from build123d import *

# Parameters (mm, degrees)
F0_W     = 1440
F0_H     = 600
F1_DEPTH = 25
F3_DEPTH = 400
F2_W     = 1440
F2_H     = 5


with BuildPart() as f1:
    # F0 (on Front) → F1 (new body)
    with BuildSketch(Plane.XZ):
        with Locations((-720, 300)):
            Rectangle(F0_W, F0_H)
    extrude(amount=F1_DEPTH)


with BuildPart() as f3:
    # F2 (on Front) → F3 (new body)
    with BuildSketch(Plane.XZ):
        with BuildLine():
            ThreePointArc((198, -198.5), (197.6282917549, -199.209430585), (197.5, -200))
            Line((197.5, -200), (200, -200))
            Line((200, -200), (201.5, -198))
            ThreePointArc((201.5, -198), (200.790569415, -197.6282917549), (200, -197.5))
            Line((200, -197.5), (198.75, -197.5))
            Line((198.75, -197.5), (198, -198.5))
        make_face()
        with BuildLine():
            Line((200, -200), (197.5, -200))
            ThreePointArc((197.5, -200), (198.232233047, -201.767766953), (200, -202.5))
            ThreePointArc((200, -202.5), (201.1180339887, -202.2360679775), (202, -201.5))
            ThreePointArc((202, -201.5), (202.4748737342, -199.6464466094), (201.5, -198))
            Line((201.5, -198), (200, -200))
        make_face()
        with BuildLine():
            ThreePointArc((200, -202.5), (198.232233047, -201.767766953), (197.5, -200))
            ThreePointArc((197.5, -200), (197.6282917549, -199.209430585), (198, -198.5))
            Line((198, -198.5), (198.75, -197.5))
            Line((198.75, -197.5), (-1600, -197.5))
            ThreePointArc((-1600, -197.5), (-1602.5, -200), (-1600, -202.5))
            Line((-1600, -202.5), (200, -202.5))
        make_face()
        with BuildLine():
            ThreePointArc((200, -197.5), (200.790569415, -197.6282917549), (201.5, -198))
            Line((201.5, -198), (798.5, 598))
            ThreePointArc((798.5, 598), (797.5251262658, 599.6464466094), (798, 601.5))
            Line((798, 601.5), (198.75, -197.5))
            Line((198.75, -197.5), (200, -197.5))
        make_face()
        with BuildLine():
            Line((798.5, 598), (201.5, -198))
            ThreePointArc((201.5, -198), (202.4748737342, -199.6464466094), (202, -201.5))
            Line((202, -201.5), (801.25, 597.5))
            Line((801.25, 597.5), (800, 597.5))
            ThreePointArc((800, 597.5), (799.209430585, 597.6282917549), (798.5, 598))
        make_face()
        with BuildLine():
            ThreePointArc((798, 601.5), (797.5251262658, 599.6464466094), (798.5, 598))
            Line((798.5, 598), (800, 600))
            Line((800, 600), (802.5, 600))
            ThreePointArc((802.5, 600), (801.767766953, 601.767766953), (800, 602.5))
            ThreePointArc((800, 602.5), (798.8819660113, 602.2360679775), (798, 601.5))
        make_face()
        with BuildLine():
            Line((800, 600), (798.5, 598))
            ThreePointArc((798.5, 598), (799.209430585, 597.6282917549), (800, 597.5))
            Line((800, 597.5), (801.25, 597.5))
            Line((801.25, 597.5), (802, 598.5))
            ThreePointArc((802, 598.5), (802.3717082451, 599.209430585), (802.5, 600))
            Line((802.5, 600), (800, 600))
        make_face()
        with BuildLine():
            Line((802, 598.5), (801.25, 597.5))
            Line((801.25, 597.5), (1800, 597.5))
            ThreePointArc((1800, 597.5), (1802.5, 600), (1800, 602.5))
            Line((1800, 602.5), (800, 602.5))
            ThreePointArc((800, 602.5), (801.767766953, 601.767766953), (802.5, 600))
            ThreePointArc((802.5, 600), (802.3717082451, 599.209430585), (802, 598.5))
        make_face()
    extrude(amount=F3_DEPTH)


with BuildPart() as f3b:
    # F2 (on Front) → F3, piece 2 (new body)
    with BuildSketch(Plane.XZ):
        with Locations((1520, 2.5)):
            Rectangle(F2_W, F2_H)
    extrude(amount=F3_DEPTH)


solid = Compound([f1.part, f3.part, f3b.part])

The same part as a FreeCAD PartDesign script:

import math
import FreeCAD as App
import Part
import Sketcher

doc = App.newDocument("Part")
body = doc.addObject("PartDesign::Body", "Body")

# Sketch on XZ plane
sketch1 = body.newObject("Sketcher::SketchObject", "Sketch")
sketch1.AttachmentSupport = (doc.getObject("XZ_Plane"), [""])
sketch1.MapMode = "FlatFace"
sketch1.addGeometry([
    Part.LineSegment(App.Vector(-1440, 600, 0), App.Vector(-1440, 0, 0)),
    Part.LineSegment(App.Vector(-1440, 0, 0), App.Vector(0, 0, 0)),
    Part.LineSegment(App.Vector(0, 0, 0), App.Vector(0, 600, 0)),
    Part.LineSegment(App.Vector(0, 600, 0), App.Vector(-1440, 600, 0)),
], False)
sketch1.addConstraint([
    Sketcher.Constraint("Coincident", 0, 2, 1, 1),
    Sketcher.Constraint("Coincident", 1, 2, 2, 1),
    Sketcher.Constraint("Coincident", 2, 2, 3, 1),
    Sketcher.Constraint("Coincident", 3, 2, 0, 1),
    Sketcher.Constraint("Vertical", 0),
    Sketcher.Constraint("Horizontal", 1),
    Sketcher.Constraint("Vertical", 2),
    Sketcher.Constraint("Horizontal", 3),
    Sketcher.Constraint("Coincident", 1, 2, -1, 1),
    Sketcher.Constraint("DistanceX", 1, 1, 1, 2, 1440.0),
    Sketcher.Constraint("DistanceY", 0, 2, 0, 1, 600.0),
])
pad1 = body.newObject("PartDesign::Pad", "Pad")
pad1.Profile = sketch1
pad1.Length = 25
body2 = doc.addObject("PartDesign::Body", "Body001")

# Sketch on XZ plane
sketch2 = body2.newObject("Sketcher::SketchObject", "Sketch001")
sketch2.AttachmentSupport = (doc.getObject("XZ_Plane001"), [""])
sketch2.MapMode = "FlatFace"
sketch2.addGeometry([
    Part.ArcOfCircle(Part.Circle(App.Vector(200, -200, 0), App.Vector(0, 0, 1), 2.5), math.radians(-90), math.radians(-37)),  # 0
    Part.LineSegment(App.Vector(202, -201.5, 0), App.Vector(801.2, 597.5, 0)),  # 1
    Part.LineSegment(App.Vector(801.2, 597.5, 0), App.Vector(1800, 597.5, 0)),  # 2
    Part.ArcOfCircle(Part.Circle(App.Vector(1800, 600, 0), App.Vector(0, 0, 1), 2.5), math.radians(-90), math.radians(90)),  # 3
    Part.LineSegment(App.Vector(1800, 602.5, 0), App.Vector(800, 602.5, 0)),  # 4
    Part.ArcOfCircle(Part.Circle(App.Vector(800, 600, 0), App.Vector(0, 0, 1), 2.5), math.radians(90), math.radians(143)),  # 5
    Part.LineSegment(App.Vector(798, 601.5, 0), App.Vector(198.8, -197.5, 0)),  # 6
    Part.LineSegment(App.Vector(198.8, -197.5, 0), App.Vector(-1600, -197.5, 0)),  # 7
    Part.ArcOfCircle(Part.Circle(App.Vector(-1600, -200, 0), App.Vector(0, 0, 1), 2.5), math.radians(90), math.radians(270)),  # 8
    Part.LineSegment(App.Vector(-1600, -202.5, 0), App.Vector(200, -202.5, 0)),  # 9
], False)
sketch2.addConstraint([
    Sketcher.Constraint("Tangent", 0, 2, 1, 1),
    Sketcher.Constraint("Coincident", 1, 2, 2, 1),
    Sketcher.Constraint("Tangent", 2, 2, 3, 1),
    Sketcher.Constraint("Tangent", 3, 2, 4, 1),
    Sketcher.Constraint("Tangent", 4, 2, 5, 1),
    Sketcher.Constraint("Tangent", 5, 2, 6, 1),
    Sketcher.Constraint("Coincident", 6, 2, 7, 1),
    Sketcher.Constraint("Tangent", 7, 2, 8, 1),
    Sketcher.Constraint("Tangent", 8, 2, 9, 1),
    Sketcher.Constraint("Tangent", 9, 2, 0, 1),
    Sketcher.Constraint("Horizontal", 2),
    Sketcher.Constraint("Horizontal", 4),
    Sketcher.Constraint("Horizontal", 7),
    Sketcher.Constraint("Horizontal", 9),
    Sketcher.Constraint("Equal", 0, 3),
    Sketcher.Constraint("Equal", 3, 5),
    Sketcher.Constraint("Equal", 5, 8),
    Sketcher.Constraint("Parallel", 1, 6),
    Sketcher.Constraint("Radius", 0, 2.5),
    Sketcher.Constraint("DistanceX", 4, 2, 4, 1, 1000.0),
    Sketcher.Constraint("DistanceX", 9, 1, 9, 2, 1800.0),
    Sketcher.Constraint("DistanceX", -1, 1, 0, 3, 200.0),
    Sketcher.Constraint("DistanceY", 0, 3, -1, 1, 200.0),
    Sketcher.Constraint("DistanceX", -1, 1, 3, 3, 1800.0),
    Sketcher.Constraint("DistanceY", -1, 1, 3, 3, 600.0),
    Sketcher.Constraint("DistanceX", 2, 1, 2, 2, 998.75),
])
pad2 = body2.newObject("PartDesign::Pad", "Pad001")
pad2.Profile = sketch2
pad2.Length = 400
body3 = doc.addObject("PartDesign::Body", "Body002")

# Sketch on XZ plane
sketch3 = body3.newObject("Sketcher::SketchObject", "Sketch002")
sketch3.AttachmentSupport = (doc.getObject("XZ_Plane002"), [""])
sketch3.MapMode = "FlatFace"
sketch3.addGeometry([
    Part.LineSegment(App.Vector(800, 5, 0), App.Vector(800, 0, 0)),
    Part.LineSegment(App.Vector(800, 0, 0), App.Vector(2240, 0, 0)),
    Part.LineSegment(App.Vector(2240, 0, 0), App.Vector(2240, 5, 0)),
    Part.LineSegment(App.Vector(2240, 5, 0), App.Vector(800, 5, 0)),
], False)
sketch3.addConstraint([
    Sketcher.Constraint("Coincident", 0, 2, 1, 1),
    Sketcher.Constraint("Coincident", 1, 2, 2, 1),
    Sketcher.Constraint("Coincident", 2, 2, 3, 1),
    Sketcher.Constraint("Coincident", 3, 2, 0, 1),
    Sketcher.Constraint("Vertical", 0),
    Sketcher.Constraint("Horizontal", 1),
    Sketcher.Constraint("Vertical", 2),
    Sketcher.Constraint("Horizontal", 3),
    Sketcher.Constraint("PointOnObject", 0, 2, -1),
    Sketcher.Constraint("DistanceX", 1, 1, 1, 2, 1440.0),
    Sketcher.Constraint("DistanceY", 0, 2, 0, 1, 5.0),
    Sketcher.Constraint("DistanceX", -1, 1, 0, 2, 800.0),
])
pad3 = body3.newObject("PartDesign::Pad", "Pad002")
pad3.Profile = sketch3
pad3.Length = 400

doc.recompute()
